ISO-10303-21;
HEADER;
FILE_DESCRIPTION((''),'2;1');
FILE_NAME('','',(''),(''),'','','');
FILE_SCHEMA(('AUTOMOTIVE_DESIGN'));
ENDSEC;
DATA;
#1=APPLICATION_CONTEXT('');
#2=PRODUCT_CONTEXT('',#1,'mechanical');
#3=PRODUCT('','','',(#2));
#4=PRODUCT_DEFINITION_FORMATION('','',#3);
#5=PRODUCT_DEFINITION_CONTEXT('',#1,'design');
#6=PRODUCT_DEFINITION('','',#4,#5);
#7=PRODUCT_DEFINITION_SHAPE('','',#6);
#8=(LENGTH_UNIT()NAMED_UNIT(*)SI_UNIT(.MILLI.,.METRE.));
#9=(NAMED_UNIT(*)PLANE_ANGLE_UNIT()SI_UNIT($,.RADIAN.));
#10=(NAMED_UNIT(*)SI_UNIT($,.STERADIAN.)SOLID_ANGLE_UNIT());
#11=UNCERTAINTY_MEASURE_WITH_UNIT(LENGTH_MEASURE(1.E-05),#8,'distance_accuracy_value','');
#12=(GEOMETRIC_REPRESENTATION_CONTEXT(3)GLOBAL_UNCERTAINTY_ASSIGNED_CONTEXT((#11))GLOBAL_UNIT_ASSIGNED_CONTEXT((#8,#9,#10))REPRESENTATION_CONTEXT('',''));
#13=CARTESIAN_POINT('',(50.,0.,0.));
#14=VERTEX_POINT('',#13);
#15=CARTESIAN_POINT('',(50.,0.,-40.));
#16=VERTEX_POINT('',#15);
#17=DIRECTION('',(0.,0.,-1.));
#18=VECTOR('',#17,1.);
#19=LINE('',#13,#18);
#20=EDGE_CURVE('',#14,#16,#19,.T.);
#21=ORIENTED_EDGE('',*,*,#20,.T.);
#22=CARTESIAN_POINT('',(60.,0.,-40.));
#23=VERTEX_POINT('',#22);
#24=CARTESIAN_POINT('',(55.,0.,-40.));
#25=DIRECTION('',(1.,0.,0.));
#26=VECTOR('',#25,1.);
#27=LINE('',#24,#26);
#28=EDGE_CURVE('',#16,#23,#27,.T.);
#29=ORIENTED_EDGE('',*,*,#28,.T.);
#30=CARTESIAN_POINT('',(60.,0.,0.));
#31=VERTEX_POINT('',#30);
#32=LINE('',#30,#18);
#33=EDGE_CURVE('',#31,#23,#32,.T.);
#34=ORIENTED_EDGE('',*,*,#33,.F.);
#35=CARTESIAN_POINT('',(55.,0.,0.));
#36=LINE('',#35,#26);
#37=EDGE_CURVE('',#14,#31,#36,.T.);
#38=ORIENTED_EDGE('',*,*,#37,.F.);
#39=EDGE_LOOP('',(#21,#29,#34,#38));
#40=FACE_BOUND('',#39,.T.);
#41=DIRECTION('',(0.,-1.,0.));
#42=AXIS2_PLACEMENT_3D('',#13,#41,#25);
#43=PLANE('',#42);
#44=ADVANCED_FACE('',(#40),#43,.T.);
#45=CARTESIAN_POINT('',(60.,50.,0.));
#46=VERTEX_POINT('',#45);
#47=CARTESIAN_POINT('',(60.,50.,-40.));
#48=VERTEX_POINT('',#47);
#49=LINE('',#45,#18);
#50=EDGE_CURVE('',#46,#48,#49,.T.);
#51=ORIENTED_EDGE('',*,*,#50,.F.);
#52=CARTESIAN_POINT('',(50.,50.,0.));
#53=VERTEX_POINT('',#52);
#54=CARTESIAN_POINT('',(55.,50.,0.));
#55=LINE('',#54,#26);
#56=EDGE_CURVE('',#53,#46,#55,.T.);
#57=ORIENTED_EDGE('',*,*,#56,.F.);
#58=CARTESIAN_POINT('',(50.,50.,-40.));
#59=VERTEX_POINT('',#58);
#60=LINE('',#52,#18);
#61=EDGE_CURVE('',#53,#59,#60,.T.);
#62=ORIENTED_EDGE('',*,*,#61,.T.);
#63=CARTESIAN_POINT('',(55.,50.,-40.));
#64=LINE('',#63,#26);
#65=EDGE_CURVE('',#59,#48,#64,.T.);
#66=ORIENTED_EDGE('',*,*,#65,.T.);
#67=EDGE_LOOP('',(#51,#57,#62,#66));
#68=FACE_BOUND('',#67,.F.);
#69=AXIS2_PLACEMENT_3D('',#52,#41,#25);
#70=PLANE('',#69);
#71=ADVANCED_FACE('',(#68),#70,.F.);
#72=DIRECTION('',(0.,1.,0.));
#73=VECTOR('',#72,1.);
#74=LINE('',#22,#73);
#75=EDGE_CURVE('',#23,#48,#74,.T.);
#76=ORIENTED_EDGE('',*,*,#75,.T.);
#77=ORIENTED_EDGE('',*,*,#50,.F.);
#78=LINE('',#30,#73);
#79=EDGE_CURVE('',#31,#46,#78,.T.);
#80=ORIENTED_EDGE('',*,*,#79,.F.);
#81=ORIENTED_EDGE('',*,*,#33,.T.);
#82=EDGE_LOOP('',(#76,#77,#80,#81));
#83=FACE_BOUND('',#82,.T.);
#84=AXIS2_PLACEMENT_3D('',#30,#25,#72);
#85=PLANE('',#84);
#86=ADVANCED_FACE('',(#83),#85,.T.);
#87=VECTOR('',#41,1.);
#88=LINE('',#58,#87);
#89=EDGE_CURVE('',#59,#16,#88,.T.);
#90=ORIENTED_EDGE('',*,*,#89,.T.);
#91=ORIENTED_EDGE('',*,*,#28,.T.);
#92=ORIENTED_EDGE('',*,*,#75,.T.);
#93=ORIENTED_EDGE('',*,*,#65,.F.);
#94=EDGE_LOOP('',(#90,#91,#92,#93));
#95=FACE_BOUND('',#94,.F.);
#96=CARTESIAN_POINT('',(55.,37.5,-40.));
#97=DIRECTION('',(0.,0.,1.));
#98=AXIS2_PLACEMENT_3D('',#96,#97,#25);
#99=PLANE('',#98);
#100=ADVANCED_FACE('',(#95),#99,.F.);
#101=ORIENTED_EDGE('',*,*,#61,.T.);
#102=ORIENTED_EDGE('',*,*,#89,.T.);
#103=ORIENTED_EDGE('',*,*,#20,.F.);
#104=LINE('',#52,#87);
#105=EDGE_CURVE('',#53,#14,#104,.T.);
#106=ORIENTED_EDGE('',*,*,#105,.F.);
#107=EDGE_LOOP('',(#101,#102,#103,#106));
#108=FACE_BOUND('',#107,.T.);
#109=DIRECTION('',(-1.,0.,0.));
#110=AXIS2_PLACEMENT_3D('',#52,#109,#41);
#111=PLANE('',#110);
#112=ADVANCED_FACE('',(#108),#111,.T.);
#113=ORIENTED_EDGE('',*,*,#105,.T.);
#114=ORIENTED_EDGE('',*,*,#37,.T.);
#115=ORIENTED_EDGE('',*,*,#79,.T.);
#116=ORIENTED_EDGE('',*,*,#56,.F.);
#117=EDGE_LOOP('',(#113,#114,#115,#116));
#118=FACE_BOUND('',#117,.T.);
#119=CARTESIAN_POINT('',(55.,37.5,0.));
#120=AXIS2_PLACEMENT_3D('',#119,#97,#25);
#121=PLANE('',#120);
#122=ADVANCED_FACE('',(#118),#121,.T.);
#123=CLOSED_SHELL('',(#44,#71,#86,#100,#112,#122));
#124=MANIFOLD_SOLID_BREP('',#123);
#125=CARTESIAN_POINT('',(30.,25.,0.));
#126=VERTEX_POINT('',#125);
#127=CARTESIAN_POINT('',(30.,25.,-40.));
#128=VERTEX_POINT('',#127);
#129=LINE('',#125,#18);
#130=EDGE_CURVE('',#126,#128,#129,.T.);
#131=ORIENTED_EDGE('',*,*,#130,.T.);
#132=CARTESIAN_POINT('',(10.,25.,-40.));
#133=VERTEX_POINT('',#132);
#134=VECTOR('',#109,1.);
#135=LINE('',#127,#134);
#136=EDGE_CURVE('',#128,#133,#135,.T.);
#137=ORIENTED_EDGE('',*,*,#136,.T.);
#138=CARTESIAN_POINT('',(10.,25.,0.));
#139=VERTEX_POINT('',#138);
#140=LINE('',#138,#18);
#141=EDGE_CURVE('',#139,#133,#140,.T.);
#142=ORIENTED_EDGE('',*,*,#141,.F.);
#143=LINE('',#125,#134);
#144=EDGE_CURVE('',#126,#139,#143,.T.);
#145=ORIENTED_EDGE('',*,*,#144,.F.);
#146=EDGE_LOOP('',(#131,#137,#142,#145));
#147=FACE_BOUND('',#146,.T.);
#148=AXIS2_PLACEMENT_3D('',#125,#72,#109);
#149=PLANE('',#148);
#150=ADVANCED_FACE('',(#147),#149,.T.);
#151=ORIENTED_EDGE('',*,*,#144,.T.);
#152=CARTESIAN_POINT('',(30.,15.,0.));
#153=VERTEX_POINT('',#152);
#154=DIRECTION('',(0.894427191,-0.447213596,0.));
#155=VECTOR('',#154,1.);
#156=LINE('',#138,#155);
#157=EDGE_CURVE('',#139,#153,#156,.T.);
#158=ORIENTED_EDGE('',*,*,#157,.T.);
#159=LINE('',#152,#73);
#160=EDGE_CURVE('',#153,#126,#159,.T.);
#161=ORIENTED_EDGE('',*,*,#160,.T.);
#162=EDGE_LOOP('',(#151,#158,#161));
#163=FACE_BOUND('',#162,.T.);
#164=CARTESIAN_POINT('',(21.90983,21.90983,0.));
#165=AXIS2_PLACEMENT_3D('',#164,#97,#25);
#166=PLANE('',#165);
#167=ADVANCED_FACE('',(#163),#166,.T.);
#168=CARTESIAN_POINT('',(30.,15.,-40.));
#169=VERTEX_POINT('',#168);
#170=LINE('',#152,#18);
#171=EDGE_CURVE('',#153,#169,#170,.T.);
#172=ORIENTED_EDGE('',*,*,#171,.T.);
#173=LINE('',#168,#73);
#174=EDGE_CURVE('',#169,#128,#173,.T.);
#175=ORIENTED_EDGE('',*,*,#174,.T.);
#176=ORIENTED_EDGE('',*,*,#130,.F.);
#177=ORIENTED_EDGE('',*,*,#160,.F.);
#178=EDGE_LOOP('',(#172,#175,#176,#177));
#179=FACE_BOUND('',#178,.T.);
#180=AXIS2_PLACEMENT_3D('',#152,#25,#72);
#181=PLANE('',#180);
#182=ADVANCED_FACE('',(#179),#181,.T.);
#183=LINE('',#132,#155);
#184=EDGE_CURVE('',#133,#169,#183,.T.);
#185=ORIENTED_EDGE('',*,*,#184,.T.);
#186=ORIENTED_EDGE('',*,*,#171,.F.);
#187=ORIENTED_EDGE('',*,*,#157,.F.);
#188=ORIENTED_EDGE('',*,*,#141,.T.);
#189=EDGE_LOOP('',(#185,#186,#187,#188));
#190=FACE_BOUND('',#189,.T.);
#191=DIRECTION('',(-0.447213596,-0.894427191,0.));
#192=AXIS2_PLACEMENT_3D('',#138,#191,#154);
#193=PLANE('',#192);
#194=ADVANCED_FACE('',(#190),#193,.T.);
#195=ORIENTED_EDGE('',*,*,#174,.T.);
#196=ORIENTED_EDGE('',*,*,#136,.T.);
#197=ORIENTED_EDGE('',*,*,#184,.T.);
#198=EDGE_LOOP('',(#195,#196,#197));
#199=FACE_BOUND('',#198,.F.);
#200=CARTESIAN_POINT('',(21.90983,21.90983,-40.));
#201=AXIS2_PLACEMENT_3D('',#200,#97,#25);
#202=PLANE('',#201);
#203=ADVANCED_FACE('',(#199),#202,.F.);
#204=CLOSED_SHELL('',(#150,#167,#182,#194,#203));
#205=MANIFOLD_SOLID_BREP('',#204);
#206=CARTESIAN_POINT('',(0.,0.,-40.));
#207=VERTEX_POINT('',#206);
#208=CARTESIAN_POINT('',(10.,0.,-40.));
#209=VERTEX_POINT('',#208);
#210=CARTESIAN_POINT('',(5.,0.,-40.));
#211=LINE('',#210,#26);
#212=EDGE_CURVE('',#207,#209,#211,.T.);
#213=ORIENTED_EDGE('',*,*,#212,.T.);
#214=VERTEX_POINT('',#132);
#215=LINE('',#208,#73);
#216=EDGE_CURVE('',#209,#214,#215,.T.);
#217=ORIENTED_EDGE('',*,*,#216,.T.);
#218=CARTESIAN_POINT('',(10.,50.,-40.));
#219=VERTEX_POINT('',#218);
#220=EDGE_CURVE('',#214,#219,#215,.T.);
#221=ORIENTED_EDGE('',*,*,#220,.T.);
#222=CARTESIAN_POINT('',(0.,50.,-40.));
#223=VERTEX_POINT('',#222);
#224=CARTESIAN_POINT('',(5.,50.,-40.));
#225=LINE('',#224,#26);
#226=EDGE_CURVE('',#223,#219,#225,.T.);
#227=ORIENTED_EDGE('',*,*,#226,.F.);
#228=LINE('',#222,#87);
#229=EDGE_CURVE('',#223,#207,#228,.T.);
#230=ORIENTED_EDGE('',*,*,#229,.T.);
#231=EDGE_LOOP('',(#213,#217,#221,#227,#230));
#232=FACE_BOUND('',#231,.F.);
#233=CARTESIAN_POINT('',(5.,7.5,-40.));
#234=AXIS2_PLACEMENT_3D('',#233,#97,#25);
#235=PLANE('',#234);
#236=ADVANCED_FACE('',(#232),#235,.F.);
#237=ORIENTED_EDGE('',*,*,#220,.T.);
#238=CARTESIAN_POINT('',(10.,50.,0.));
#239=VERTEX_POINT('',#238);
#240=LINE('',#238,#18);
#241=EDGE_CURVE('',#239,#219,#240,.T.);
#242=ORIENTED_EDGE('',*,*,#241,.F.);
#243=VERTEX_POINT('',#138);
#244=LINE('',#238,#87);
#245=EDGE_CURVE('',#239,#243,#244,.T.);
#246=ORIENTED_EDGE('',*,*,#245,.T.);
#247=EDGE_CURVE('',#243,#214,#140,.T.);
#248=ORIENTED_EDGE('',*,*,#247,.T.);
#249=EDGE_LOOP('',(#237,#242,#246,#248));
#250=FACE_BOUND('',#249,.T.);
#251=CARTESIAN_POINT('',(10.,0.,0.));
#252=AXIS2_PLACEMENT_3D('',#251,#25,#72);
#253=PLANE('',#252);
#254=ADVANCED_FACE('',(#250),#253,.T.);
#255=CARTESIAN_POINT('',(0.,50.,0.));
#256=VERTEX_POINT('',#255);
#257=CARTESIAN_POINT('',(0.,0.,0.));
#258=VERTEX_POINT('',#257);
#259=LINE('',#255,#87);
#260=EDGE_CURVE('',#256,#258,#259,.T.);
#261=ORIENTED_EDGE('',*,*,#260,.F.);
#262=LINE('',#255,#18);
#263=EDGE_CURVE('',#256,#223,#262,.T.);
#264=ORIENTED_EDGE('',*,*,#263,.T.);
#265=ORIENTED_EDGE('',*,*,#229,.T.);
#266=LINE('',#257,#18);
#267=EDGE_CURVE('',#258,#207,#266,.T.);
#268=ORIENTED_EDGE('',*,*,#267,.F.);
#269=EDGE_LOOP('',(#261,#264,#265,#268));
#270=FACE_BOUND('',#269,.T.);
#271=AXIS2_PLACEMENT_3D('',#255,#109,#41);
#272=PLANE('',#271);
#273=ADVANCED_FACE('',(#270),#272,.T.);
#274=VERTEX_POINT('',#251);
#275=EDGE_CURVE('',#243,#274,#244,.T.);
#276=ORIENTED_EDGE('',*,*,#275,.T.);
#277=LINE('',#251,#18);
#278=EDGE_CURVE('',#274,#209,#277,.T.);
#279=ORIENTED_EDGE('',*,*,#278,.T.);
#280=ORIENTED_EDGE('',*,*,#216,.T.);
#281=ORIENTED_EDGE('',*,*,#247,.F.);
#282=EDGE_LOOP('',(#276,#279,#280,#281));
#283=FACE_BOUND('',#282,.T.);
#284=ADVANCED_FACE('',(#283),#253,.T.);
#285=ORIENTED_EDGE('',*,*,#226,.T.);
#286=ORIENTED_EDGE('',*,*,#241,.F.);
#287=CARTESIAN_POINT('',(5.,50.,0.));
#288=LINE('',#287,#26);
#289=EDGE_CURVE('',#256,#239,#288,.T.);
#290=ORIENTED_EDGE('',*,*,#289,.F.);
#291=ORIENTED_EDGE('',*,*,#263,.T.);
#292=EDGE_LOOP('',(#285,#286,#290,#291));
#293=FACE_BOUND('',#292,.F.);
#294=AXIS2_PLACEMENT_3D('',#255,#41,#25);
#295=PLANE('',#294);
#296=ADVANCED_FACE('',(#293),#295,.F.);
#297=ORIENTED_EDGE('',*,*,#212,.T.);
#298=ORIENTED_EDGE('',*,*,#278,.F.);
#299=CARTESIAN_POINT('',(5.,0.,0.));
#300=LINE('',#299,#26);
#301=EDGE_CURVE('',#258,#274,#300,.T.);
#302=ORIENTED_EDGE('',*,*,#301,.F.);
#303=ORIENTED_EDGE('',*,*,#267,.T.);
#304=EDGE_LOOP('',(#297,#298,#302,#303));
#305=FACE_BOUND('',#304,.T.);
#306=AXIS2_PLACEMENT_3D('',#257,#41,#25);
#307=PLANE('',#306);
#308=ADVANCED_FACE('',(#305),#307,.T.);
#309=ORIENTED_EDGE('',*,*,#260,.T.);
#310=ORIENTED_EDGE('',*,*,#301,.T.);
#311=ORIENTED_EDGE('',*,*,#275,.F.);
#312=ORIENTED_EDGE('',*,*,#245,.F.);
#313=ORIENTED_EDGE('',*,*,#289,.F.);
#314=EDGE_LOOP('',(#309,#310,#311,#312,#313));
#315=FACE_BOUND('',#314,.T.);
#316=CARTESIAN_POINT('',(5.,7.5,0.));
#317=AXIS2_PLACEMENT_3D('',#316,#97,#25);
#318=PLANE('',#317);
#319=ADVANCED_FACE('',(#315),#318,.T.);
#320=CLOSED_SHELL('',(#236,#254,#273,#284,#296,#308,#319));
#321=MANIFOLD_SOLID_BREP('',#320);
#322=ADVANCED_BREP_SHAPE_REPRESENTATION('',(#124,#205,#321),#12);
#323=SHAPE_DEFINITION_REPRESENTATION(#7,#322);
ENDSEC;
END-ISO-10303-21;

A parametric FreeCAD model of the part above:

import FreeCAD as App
import Part
import Sketcher
from FreeCAD import Vector


def add_polygon(sketch, points):
    """Adds a closed chain of lines whose ends are joined by coincident constraints."""
    first, n = sketch.GeometryCount, len(points)
    for a, b in zip(points, points[1:] + points[:1]):
        sketch.addGeometry(Part.LineSegment(App.Vector(*a, 0), App.Vector(*b, 0)), False)
    for i in range(n):
        sketch.addConstraint(Sketcher.Constraint("Coincident", first + i, 2, first + (i + 1) % n, 1))

doc = App.newDocument("Part")
params = doc.addObject("Spreadsheet::Sheet", "Params")
for row, (alias, value) in enumerate([
    ("sketch1_width", "10 mm"),
    ("sketch1_width2", "20 mm"),
    ("sketch1_height", "25 mm"),
    ("pad1_length", "40 mm"),
], start=1):
    params.set(f"A{row}", alias)
    params.set(f"B{row}", "=" + value)
    params.setAlias(f"B{row}", alias)

body = doc.addObject("PartDesign::Body", "Body")
body.AllowCompound = True

# Sketch on XY plane
sketch1 = doc.addObject("Sketcher::SketchObject", "Sketch")
body.addObject(sketch1)
sketch1.AttachmentSupport = (doc.XY_Plane, [""])
sketch1.MapMode = "FlatFace"
add_polygon(sketch1, [(0, 0), (10, 0), (10, 25), (10, 50), (0, 50)])  # lines 0-4
add_polygon(sketch1, [(50, 50), (50, 0), (60, 0), (60, 50)])  # lines 5-8
add_polygon(sketch1, [(30, 25), (10, 25), (30, 15)])  # lines 9-11
sketch1.addConstraint(Sketcher.Constraint("Horizontal", 0))
sketch1.addConstraint(Sketcher.Constraint("Vertical", 1))
sketch1.addConstraint(Sketcher.Constraint("Vertical", 2))
sketch1.addConstraint(Sketcher.Constraint("Horizontal", 3))
sketch1.addConstraint(Sketcher.Constraint("Vertical", 4))
sketch1.addConstraint(Sketcher.Constraint("Vertical", 5))
sketch1.addConstraint(Sketcher.Constraint("Horizontal", 6))
sketch1.addConstraint(Sketcher.Constraint("Vertical", 7))
sketch1.addConstraint(Sketcher.Constraint("Horizontal", 8))
sketch1.addConstraint(Sketcher.Constraint("Horizontal", 9))
sketch1.addConstraint(Sketcher.Constraint("Vertical", 11))
sketch1.addConstraint(Sketcher.Constraint("Coincident", 4, 2, -1, 1))
sketch1.addConstraint(Sketcher.Constraint("Coincident", 9, 2, 1, 2))
sketch1.addConstraint(Sketcher.Constraint("PointOnObject", 5, 2, -1))
sketch1.addConstraint(Sketcher.Constraint("Horizontal", 3, 2, 7, 2))
sketch1.addConstraint(Sketcher.Constraint("Equal", 3, 6))
sketch1.addConstraint(Sketcher.Constraint("Equal", 1, 2))
sketch1.addConstraint(Sketcher.Constraint("Equal", 8, 11))
sketch1.addConstraint(Sketcher.Constraint("DistanceX", 0, 1, 0, 2, 10.0))
sketch1.addConstraint(Sketcher.Constraint("DistanceX", 9, 2, 9, 1, 20.0))
sketch1.addConstraint(Sketcher.Constraint("DistanceY", 1, 1, 1, 2, 25.0))
sketch1.addConstraint(Sketcher.Constraint("DistanceX", -1, 1, 5, 2, 50.0))
sketch1.setExpression("Constraints[30]", "Params.sketch1_width")
sketch1.setExpression("Constraints[31]", "Params.sketch1_width2")
sketch1.setExpression("Constraints[32]", "Params.sketch1_height")
pad1 = doc.addObject("PartDesign::Pad", "Pad")
body.addObject(pad1)
pad1.Profile = sketch1
pad1.setExpression("Length", "Params.pad1_length")
pad1.Reversed = True

doc.recompute()
